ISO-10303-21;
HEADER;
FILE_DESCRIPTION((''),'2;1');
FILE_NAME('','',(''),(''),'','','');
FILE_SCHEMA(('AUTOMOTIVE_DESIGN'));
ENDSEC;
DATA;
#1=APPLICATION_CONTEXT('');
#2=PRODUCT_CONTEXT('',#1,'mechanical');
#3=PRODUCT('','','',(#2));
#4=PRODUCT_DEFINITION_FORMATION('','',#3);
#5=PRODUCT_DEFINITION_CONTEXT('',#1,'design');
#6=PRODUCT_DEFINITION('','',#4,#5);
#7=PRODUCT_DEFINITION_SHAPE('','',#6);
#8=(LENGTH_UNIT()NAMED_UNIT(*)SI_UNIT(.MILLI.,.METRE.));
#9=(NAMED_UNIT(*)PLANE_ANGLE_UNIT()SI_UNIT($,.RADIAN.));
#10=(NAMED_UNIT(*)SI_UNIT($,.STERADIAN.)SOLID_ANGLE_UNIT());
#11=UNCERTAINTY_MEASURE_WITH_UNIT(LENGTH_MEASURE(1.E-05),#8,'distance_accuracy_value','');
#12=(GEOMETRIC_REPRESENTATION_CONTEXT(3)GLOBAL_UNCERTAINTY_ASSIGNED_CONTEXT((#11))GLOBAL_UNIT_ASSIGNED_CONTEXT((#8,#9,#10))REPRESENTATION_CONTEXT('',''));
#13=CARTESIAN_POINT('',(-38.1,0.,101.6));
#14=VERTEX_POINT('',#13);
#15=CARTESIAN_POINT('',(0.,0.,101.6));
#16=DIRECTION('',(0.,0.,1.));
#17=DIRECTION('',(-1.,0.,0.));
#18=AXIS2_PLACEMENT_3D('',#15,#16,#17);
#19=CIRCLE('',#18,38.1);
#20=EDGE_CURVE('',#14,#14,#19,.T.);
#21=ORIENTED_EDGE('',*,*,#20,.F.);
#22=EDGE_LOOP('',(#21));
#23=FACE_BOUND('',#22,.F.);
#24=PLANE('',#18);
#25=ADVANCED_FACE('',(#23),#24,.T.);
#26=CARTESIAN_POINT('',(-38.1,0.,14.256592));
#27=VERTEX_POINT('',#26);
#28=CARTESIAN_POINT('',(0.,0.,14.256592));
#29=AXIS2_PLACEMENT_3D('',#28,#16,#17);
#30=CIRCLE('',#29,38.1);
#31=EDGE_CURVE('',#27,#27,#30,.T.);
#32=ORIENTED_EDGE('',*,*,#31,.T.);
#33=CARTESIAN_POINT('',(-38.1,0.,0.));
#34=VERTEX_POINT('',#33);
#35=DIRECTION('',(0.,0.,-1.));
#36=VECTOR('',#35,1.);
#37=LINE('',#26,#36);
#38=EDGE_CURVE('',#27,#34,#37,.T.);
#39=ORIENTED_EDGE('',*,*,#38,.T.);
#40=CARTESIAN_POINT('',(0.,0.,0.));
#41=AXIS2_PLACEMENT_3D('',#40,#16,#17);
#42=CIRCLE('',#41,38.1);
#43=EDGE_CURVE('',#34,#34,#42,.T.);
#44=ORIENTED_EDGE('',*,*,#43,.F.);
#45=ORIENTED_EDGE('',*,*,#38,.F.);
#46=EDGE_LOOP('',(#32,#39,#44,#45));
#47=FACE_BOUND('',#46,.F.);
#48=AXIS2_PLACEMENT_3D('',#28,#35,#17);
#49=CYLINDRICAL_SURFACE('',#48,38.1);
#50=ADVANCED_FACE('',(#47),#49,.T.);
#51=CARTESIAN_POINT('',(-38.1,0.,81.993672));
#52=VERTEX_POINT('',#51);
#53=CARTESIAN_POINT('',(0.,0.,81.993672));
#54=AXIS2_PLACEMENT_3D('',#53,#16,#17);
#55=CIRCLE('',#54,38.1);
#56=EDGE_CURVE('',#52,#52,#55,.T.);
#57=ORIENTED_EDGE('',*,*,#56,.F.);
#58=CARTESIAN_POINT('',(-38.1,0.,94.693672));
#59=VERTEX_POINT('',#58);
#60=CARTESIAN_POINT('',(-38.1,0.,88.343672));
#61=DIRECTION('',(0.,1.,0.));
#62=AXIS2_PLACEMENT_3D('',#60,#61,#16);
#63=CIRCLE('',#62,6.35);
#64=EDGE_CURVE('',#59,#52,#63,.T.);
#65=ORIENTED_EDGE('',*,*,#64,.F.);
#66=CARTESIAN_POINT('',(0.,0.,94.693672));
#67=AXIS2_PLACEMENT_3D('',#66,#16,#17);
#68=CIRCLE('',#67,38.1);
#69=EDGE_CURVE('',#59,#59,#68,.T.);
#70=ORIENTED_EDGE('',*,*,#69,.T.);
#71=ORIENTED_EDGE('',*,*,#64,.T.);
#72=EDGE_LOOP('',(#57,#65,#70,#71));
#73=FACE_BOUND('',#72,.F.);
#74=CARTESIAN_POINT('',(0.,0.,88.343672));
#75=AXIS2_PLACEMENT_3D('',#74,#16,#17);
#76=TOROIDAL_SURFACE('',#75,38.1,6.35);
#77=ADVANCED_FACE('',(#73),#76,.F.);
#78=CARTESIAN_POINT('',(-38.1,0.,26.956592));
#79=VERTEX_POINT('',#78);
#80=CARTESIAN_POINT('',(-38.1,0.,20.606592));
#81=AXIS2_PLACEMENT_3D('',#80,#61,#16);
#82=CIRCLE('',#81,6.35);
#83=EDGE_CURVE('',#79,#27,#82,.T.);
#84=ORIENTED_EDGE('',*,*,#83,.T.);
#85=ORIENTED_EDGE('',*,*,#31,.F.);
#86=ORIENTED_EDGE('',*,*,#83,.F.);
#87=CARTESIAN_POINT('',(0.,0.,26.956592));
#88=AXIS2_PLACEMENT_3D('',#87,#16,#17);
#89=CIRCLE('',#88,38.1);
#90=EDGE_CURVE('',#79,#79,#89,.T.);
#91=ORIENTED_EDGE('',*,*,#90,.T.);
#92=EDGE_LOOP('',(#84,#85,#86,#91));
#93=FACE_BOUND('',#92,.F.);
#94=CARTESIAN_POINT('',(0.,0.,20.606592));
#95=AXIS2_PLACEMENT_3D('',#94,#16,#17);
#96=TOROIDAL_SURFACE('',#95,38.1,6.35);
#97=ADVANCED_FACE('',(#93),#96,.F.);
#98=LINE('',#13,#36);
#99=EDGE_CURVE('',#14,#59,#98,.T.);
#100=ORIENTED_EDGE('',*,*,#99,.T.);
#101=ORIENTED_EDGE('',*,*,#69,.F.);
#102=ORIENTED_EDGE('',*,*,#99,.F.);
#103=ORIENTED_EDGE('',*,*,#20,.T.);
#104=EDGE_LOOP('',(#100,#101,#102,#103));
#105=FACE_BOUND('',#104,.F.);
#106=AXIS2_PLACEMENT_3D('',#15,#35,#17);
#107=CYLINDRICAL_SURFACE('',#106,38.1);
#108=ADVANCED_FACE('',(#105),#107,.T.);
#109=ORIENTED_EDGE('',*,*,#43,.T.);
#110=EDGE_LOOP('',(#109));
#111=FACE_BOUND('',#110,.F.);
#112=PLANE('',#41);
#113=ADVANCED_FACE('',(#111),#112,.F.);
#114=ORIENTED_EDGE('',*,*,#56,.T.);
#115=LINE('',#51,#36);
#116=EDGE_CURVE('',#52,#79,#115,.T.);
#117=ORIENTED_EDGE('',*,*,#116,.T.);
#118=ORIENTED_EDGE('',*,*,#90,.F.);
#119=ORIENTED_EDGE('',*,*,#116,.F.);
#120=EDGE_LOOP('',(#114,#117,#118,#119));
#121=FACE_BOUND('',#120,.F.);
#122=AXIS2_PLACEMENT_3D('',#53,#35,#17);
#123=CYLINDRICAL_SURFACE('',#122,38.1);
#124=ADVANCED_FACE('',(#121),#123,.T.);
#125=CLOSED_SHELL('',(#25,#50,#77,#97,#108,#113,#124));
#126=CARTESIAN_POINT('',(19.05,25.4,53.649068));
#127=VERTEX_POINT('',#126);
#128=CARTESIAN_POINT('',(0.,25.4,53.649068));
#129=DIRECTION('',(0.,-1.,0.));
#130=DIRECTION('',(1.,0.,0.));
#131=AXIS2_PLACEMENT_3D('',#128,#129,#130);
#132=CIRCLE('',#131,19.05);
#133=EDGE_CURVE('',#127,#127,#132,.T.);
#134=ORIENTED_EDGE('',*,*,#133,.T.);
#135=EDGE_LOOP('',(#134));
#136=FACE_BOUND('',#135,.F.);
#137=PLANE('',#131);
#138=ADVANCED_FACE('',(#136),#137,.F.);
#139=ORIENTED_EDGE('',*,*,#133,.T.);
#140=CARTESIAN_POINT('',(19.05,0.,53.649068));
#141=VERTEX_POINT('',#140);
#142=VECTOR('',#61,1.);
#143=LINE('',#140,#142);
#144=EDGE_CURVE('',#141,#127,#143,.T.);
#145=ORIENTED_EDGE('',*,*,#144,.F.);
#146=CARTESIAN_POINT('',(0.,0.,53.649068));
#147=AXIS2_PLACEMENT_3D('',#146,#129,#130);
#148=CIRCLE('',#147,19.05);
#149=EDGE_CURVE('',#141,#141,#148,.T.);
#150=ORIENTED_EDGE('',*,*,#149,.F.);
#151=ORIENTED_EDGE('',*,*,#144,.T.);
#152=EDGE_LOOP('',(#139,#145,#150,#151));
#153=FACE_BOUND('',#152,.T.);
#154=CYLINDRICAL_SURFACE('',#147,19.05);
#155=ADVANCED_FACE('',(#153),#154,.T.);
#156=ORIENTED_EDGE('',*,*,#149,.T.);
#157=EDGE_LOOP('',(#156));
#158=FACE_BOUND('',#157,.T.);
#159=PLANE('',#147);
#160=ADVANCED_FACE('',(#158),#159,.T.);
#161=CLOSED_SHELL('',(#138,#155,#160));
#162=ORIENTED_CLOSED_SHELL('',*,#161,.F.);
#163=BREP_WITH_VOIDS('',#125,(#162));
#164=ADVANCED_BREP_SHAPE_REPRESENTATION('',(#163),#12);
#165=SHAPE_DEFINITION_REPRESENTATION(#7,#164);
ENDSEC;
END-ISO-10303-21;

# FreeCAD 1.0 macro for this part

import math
import FreeCAD as App
import Part
import Sketcher
from FreeCAD import Vector
Q = App.Units.Quantity

doc = App.newDocument("Part")
body = doc.addObject("PartDesign::Body", "Body")

# Sketch on XZ plane
sketch1 = body.newObject("Sketcher::SketchObject", "Sketch")
sketch1.AttachmentSupport = (doc.getObject("XZ_Plane"), [""])
sketch1.MapMode = "FlatFace"
sketch1.addGeometry([
    Part.LineSegment(Vector(-38, 0, 0), Vector(0, 0, 0)),  # 0
    Part.LineSegment(Vector(0, 0, 0), Vector(0, 102, 0)),  # 1
    Part.LineSegment(Vector(0, 102, 0), Vector(-38, 102, 0)),  # 2
    Part.LineSegment(Vector(-38, 102, 0), Vector(-38, 95, 0)),  # 3
    Part.ArcOfCircle(Part.Circle(Vector(-38, 88, 0), Vector(0, 0, 1), 6), math.radians(-90), math.radians(90)),  # 4
    Part.LineSegment(Vector(-38, 82, 0), Vector(-38, 27, 0)),  # 5
    Part.ArcOfCircle(Part.Circle(Vector(-38, 21, 0), Vector(0, 0, 1), 6), math.radians(-90), math.radians(90)),  # 6
    Part.LineSegment(Vector(-38, 14, 0), Vector(-38, 0, 0)),  # 7
], False)
sketch1.addConstraint([
    Sketcher.Constraint("Coincident", 0, 2, 1, 1),
    Sketcher.Constraint("Coincident", 1, 2, 2, 1),
    Sketcher.Constraint("Coincident", 2, 2, 3, 1),
    Sketcher.Constraint("Coincident", 3, 2, 4, 2),
    Sketcher.Constraint("Coincident", 4, 1, 5, 1),
    Sketcher.Constraint("Coincident", 5, 2, 6, 2),
    Sketcher.Constraint("Coincident", 6, 1, 7, 1),
    Sketcher.Constraint("Coincident", 7, 2, 0, 1),
    Sketcher.Constraint("Horizontal", 0),
    Sketcher.Constraint("Vertical", 1),
    Sketcher.Constraint("Horizontal", 2),
    Sketcher.Constraint("Vertical", 3),
    Sketcher.Constraint("Vertical", 5),
    Sketcher.Constraint("Vertical", 7),
    Sketcher.Constraint("Coincident", 0, 2, -1, 1),
    Sketcher.Constraint("Equal", 4, 6),
    Sketcher.Constraint("Vertical", 4, 3, 6, 3),
    Sketcher.Constraint("Vertical", 6, 3, 2, 2),
    Sketcher.Constraint("Vertical", 3, 2, 4, 1),
    Sketcher.Constraint("Vertical", 5, 2, 6, 1),
    Sketcher.Constraint("DistanceY", 1, 1, 1, 2, Q("4 in")),
    Sketcher.Constraint("Radius", 4, Q("0.25 in")),
    Sketcher.Constraint("DistanceX", 0, 1, 0, 2, Q("1.5 in")),
    Sketcher.Constraint("DistanceY", 5, 2, 5, 1, 55.03708),
    Sketcher.Constraint("DistanceY", 3, 2, 3, 1, 6.906328),
])
revolution = body.newObject("PartDesign::Revolution", "Revolution")
revolution.Profile = sketch1
revolution.ReferenceAxis = (sketch1, ["V_Axis"])
revolution.Angle = 360

# Sketch on XZ plane
sketch2 = body.newObject("Sketcher::SketchObject", "Sketch001")
sketch2.AttachmentSupport = (doc.getObject("XZ_Plane"), [""])
sketch2.MapMode = "FlatFace"
sketch2.addGeometry(Part.Circle(Vector(0, 54, 0), Vector(0, 0, 1), 19), False)
sketch2.addConstraint([
    Sketcher.Constraint("PointOnObject", 0, 3, -2),
    Sketcher.Constraint("Diameter", 0, Q("1.5 in")),
    Sketcher.Constraint("DistanceY", -1, 1, 0, 3, 53.649068),
])
pocket1 = body.newObject("PartDesign::Pocket", "Pocket")
pocket1.Profile = sketch2
pocket1.Length = Q("1 in")

doc.recompute()
